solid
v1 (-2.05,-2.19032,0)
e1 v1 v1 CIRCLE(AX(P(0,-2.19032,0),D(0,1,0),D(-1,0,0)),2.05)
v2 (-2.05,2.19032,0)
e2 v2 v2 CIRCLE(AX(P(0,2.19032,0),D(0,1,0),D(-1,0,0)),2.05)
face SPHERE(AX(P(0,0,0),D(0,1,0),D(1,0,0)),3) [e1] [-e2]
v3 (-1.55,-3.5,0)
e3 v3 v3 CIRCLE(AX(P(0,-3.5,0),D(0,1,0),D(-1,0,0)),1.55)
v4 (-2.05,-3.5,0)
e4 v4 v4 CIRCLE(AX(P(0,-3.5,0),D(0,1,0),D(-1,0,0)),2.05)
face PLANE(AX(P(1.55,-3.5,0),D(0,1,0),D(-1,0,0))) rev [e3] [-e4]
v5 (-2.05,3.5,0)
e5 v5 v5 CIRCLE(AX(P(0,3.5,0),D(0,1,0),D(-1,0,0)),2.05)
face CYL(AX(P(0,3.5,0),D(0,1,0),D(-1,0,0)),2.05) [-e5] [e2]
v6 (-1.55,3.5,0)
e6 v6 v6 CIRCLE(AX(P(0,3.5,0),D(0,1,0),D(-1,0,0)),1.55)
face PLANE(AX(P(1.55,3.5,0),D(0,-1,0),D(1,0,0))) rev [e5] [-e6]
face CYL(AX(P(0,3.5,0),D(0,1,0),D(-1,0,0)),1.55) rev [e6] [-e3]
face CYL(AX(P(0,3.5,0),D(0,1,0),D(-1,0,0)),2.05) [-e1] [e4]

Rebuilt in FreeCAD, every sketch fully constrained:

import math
import FreeCAD as App
import Part
import Sketcher

V = App.Vector

doc = App.newDocument("Part")
body = doc.addObject("PartDesign::Body", "Body")

sketch1 = body.newObject("Sketcher::SketchObject", "Sketch")
sketch1.AttachmentSupport = (doc.getObject("XY_Plane"), [""])
sketch1.MapMode = "FlatFace"
sketch1.addGeometry(Part.LineSegment(V(1.55, 3.5, 0), V(1.55, -3.5, 0)), False)
sketch1.addGeometry(Part.LineSegment(V(1.55, -3.5, 0), V(2.05, -3.5, 0)), False)
sketch1.addGeometry(Part.LineSegment(V(2.05, -3.5, 0), V(2.05, -2.19, 0)), False)
sketch1.addGeometry(Part.ArcOfCircle(Part.Circle(V(0, 0, 0), V(0, 0, 1), 3), math.radians(-47), math.radians(47)), False)
sketch1.addGeometry(Part.LineSegment(V(2.05, 2.19, 0), V(2.05, 3.5, 0)), False)
sketch1.addGeometry(Part.LineSegment(V(2.05, 3.5, 0), V(1.55, 3.5, 0)), False)
sketch1.addConstraint(Sketcher.Constraint("Coincident", 0, 2, 1, 1))
sketch1.addConstraint(Sketcher.Constraint("Coincident", 1, 2, 2, 1))
sketch1.addConstraint(Sketcher.Constraint("Coincident", 2, 2, 3, 1))
sketch1.addConstraint(Sketcher.Constraint("Coincident", 3, 2, 4, 1))
sketch1.addConstraint(Sketcher.Constraint("Coincident", 4, 2, 5, 1))
sketch1.addConstraint(Sketcher.Constraint("Coincident", 5, 2, 0, 1))
sketch1.addConstraint(Sketcher.Constraint("Vertical", 0))
sketch1.addConstraint(Sketcher.Constraint("Horizontal", 1))
sketch1.addConstraint(Sketcher.Constraint("Vertical", 2))
sketch1.addConstraint(Sketcher.Constraint("Vertical", 4))
sketch1.addConstraint(Sketcher.Constraint("Horizontal", 5))
sketch1.addConstraint(Sketcher.Constraint("Coincident", 3, 3, -1, 1))
sketch1.addConstraint(Sketcher.Constraint("Symmetric", 1, 2, 4, 2, -1))
sketch1.addConstraint(Sketcher.Constraint("Radius", 3, 3.0))
sketch1.addConstraint(Sketcher.Constraint("DistanceY", 0, 2, 0, 1, 7.0))
sketch1.addConstraint(Sketcher.Constraint("DistanceX", 1, 1, 1, 2, 0.5))
sketch1.addConstraint(Sketcher.Constraint("DistanceX", -1, 1, 0, 2, 1.55))
revolution = body.newObject("PartDesign::Revolution", "Revolution")
revolution.Profile = sketch1
revolution.ReferenceAxis = (sketch1, ["V_Axis"])
revolution.Angle = 360

doc.recompute()
